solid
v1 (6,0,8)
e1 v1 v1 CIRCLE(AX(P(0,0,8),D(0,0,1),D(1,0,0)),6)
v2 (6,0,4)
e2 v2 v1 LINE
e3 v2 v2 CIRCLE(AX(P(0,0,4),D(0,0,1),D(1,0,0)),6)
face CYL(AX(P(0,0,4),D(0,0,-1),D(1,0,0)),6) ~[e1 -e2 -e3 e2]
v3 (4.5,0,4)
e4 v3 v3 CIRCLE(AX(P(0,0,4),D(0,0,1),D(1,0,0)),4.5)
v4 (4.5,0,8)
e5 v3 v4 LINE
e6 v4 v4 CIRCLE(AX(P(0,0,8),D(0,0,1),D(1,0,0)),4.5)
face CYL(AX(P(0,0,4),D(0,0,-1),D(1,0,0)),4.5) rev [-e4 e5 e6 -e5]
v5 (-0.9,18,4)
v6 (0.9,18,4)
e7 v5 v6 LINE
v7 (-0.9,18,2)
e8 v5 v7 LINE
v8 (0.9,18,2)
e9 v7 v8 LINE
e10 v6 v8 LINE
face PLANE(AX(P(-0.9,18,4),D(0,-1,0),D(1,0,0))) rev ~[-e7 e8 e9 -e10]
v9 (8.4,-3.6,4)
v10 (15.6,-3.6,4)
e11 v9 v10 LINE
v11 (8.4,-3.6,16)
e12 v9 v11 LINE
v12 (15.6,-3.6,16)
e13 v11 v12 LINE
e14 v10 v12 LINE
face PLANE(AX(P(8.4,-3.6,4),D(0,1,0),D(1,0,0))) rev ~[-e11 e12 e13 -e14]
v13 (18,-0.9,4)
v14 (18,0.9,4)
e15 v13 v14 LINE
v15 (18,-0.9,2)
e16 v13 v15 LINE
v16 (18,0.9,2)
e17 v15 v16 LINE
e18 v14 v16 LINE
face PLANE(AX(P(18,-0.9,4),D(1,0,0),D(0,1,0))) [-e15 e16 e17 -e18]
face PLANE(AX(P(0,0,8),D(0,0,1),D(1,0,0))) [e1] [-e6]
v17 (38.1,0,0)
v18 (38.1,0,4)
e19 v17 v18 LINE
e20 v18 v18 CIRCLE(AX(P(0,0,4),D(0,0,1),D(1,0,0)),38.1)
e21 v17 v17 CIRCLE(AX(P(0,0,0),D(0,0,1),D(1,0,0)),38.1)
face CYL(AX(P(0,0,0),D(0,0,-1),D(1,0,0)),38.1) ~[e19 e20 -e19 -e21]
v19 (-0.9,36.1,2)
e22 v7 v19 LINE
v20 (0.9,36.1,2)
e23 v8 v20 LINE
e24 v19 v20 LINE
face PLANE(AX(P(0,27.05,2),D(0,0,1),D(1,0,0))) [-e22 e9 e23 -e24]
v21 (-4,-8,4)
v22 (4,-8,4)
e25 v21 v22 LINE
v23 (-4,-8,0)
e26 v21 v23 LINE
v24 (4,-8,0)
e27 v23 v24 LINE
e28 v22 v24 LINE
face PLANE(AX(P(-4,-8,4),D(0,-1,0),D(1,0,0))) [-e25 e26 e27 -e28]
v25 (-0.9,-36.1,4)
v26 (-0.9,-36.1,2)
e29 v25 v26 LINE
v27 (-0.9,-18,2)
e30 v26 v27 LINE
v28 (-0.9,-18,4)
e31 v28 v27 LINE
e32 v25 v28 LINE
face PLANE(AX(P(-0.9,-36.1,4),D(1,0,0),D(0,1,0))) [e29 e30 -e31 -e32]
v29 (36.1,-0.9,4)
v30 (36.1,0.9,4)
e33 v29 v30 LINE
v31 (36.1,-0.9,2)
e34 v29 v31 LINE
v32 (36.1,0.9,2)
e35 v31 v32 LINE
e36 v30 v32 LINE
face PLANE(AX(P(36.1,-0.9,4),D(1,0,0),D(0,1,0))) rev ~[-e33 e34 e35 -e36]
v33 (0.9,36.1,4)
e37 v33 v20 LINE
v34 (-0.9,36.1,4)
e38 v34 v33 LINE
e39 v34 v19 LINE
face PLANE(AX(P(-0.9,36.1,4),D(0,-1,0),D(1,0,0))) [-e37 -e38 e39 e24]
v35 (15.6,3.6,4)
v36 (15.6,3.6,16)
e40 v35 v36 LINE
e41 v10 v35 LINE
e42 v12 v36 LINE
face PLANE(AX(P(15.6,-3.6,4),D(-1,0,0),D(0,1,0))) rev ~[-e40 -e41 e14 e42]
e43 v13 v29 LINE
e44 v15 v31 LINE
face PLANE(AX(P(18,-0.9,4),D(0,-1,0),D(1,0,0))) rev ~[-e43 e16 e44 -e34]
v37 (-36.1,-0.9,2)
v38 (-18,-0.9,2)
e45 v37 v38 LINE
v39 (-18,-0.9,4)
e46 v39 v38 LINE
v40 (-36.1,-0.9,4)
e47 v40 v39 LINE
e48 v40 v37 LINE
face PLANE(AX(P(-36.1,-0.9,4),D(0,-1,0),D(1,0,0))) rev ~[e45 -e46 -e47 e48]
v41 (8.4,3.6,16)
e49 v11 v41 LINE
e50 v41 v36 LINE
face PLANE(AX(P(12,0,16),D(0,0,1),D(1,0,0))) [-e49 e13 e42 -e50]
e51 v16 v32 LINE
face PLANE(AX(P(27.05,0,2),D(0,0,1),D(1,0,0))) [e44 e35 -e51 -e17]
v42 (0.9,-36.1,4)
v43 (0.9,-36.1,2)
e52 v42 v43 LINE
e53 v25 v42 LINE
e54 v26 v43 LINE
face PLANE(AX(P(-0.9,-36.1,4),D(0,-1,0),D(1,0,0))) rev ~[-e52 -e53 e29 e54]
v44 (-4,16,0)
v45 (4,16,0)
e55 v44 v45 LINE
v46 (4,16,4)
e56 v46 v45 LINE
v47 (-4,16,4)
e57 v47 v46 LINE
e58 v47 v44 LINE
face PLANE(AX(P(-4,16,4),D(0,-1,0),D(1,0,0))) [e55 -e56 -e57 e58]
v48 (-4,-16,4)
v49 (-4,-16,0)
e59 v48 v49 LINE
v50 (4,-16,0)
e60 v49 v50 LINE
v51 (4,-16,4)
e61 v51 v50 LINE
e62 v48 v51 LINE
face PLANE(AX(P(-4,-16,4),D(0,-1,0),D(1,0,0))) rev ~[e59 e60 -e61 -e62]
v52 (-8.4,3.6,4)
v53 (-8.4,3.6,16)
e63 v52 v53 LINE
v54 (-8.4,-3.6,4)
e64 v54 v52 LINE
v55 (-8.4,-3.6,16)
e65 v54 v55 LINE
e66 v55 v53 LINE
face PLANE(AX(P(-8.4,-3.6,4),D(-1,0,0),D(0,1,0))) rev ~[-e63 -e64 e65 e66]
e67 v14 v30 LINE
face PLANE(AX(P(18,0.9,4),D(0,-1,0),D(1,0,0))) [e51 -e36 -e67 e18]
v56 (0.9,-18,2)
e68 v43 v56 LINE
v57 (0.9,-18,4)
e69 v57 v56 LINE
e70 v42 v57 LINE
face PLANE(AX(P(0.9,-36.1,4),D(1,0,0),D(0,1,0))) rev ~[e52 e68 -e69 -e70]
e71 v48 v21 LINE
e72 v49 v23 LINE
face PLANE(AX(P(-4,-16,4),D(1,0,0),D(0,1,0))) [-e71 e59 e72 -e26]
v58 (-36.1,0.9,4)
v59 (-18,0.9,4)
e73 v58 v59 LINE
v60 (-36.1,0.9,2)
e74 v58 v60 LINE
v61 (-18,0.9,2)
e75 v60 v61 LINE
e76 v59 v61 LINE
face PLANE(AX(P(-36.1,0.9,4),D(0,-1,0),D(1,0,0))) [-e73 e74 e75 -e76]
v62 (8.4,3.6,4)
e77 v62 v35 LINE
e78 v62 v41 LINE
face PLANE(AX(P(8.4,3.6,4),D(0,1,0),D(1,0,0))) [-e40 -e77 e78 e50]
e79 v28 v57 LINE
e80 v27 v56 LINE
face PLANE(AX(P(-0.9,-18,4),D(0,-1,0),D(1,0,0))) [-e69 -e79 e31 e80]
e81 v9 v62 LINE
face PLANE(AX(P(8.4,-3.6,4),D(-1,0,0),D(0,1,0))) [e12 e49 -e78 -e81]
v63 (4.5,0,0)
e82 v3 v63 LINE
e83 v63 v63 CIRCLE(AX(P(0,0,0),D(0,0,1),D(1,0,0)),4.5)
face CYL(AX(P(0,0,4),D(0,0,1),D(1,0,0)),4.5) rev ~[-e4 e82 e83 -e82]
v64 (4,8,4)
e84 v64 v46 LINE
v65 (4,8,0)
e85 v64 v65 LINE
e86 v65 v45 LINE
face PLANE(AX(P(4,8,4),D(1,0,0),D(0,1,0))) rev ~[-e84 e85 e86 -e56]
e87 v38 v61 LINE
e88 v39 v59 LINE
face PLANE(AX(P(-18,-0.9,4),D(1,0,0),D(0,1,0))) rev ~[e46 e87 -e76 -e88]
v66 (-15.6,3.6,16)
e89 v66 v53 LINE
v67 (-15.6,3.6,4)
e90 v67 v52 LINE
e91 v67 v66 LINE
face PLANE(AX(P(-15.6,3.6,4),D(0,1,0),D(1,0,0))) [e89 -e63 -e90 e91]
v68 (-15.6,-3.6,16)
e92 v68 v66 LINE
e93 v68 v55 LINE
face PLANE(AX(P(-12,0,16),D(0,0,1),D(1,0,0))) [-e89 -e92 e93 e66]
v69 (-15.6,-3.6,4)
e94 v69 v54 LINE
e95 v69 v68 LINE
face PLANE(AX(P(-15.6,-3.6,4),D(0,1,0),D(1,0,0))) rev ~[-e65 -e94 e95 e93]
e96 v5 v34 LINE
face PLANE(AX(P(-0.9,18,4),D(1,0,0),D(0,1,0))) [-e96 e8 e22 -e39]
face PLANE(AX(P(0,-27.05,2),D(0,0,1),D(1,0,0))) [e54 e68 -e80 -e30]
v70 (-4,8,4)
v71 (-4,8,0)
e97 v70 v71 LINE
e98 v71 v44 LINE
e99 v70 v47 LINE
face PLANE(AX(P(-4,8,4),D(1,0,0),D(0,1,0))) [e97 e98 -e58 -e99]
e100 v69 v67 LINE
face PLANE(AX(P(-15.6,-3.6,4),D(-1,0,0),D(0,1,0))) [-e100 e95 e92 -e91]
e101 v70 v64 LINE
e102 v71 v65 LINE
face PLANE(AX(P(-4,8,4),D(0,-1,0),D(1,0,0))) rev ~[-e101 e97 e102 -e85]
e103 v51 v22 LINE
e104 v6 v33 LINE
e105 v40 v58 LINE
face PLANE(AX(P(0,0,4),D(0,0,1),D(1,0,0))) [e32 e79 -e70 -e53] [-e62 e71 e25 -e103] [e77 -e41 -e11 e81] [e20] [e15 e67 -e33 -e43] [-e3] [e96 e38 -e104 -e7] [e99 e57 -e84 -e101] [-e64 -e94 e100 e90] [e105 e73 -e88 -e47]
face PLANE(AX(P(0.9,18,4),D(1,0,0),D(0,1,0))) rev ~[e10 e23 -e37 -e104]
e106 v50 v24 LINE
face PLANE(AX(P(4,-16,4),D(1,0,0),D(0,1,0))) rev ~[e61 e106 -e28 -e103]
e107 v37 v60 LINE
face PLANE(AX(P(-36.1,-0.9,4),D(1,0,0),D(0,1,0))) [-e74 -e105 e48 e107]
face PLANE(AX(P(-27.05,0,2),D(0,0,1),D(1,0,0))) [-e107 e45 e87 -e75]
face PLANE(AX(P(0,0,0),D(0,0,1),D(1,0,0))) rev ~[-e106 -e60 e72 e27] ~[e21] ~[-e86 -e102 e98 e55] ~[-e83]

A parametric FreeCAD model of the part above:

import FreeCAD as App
import Part
import Sketcher

V = App.Vector

doc = App.newDocument("Part")
body = doc.addObject("PartDesign::Body", "Body")

# Sketch on XY plane
sketch1 = body.newObject("Sketcher::SketchObject", "Sketch")
sketch1.AttachmentSupport = (doc.getObject("XY_Plane"), [""])
sketch1.MapMode = "FlatFace"
sketch1.addGeometry(Part.Circle(V(0, 0, 0), V(0, 0, 1), 38), False)
sketch1.addConstraint(Sketcher.Constraint("Coincident", 0, 3, -1, 1))
sketch1.addConstraint(Sketcher.Constraint("Diameter", 0, 76.2))
pad1 = body.newObject("PartDesign::Pad", "Pad")
pad1.Profile = sketch1
pad1.Length = 4

# Sketch on XY plane
sketch2 = body.newObject("Sketcher::SketchObject", "Sketch001")
sketch2.AttachmentSupport = (doc.getObject("XY_Plane"), [""])
sketch2.MapMode = "FlatFace"
sketch2.AttachmentOffset = App.Placement(V(0, 0, 4), App.Rotation())
sketch2.addGeometry(Part.Circle(V(0, 0, 0), V(0, 0, 1), 4.5), False)
sketch2.addGeometry(Part.LineSegment(V(-4, 16, 0), V(-4, 8, 0)), False)
sketch2.addGeometry(Part.LineSegment(V(-4, 8, 0), V(4, 8, 0)), False)
sketch2.addGeometry(Part.LineSegment(V(4, 8, 0), V(4, 16, 0)), False)
sketch2.addGeometry(Part.LineSegment(V(4, 16, 0), V(-4, 16, 0)), False)
sketch2.addGeometry(Part.LineSegment(V(-4, -8, 0), V(-4, -16, 0)), False)
sketch2.addGeometry(Part.LineSegment(V(-4, -16, 0), V(4, -16, 0)), False)
sketch2.addGeometry(Part.LineSegment(V(4, -16, 0), V(4, -8, 0)), False)
sketch2.addGeometry(Part.LineSegment(V(4, -8, 0), V(-4, -8, 0)), False)
sketch2.addConstraint(Sketcher.Constraint("Coincident", 1, 2, 2, 1))
sketch2.addConstraint(Sketcher.Constraint("Coincident", 2, 2, 3, 1))
sketch2.addConstraint(Sketcher.Constraint("Coincident", 3, 2, 4, 1))
sketch2.addConstraint(Sketcher.Constraint("Coincident", 4, 2, 1, 1))
sketch2.addConstraint(Sketcher.Constraint("Coincident", 5, 2, 6, 1))
sketch2.addConstraint(Sketcher.Constraint("Coincident", 6, 2, 7, 1))
sketch2.addConstraint(Sketcher.Constraint("Coincident", 7, 2, 8, 1))
sketch2.addConstraint(Sketcher.Constraint("Coincident", 8, 2, 5, 1))
sketch2.addConstraint(Sketcher.Constraint("Vertical", 1))
sketch2.addConstraint(Sketcher.Constraint("Horizontal", 2))
sketch2.addConstraint(Sketcher.Constraint("Vertical", 3))
sketch2.addConstraint(Sketcher.Constraint("Horizontal", 4))
sketch2.addConstraint(Sketcher.Constraint("Vertical", 5))
sketch2.addConstraint(Sketcher.Constraint("Horizontal", 6))
sketch2.addConstraint(Sketcher.Constraint("Vertical", 7))
sketch2.addConstraint(Sketcher.Constraint("Horizontal", 8))
sketch2.addConstraint(Sketcher.Constraint("Coincident", 0, 3, -1, 1))
sketch2.addConstraint(Sketcher.Constraint("Symmetric", 3, 2, 5, 2, -1, 1))
sketch2.addConstraint(Sketcher.Constraint("Symmetric", 1, 2, 7, 2, -1, 1))
sketch2.addConstraint(Sketcher.Constraint("Vertical", 4, 2, 5, 2))
sketch2.addConstraint(Sketcher.Constraint("Equal", 8, 1))
sketch2.addConstraint(Sketcher.Constraint("Diameter", 0, 9.0))
sketch2.addConstraint(Sketcher.Constraint("DistanceX", 2, 1, 2, 2, 8.0))
sketch2.addConstraint(Sketcher.Constraint("DistanceY", -1, 1, 1, 2, 8.0))
pocket1 = body.newObject("PartDesign::Pocket", "Pocket")
pocket1.Profile = sketch2
pocket1.Type = "ThroughAll"

# Sketch on XY plane
sketch3 = body.newObject("Sketcher::SketchObject", "Sketch002")
sketch3.AttachmentSupport = (doc.getObject("XY_Plane"), [""])
sketch3.MapMode = "FlatFace"
sketch3.AttachmentOffset = App.Placement(V(0, 0, 4), App.Rotation())
sketch3.addGeometry(Part.LineSegment(V(8, 4, 0), V(8, -4, 0)), False)
sketch3.addGeometry(Part.LineSegment(V(8, -4, 0), V(16, -4, 0)), False)
sketch3.addGeometry(Part.LineSegment(V(16, -4, 0), V(16, 4, 0)), False)
sketch3.addGeometry(Part.LineSegment(V(16, 4, 0), V(8, 4, 0)), False)
sketch3.addGeometry(Part.LineSegment(V(-16, 4, 0), V(-16, -4, 0)), False)
sketch3.addGeometry(Part.LineSegment(V(-16, -4, 0), V(-8, -4, 0)), False)
sketch3.addGeometry(Part.LineSegment(V(-8, -4, 0), V(-8, 4, 0)), False)
sketch3.addGeometry(Part.LineSegment(V(-8, 4, 0), V(-16, 4, 0)), False)
sketch3.addConstraint(Sketcher.Constraint("Coincident", 0, 2, 1, 1))
sketch3.addConstraint(Sketcher.Constraint("Coincident", 1, 2, 2, 1))
sketch3.addConstraint(Sketcher.Constraint("Coincident", 2, 2, 3, 1))
sketch3.addConstraint(Sketcher.Constraint("Coincident", 3, 2, 0, 1))
sketch3.addConstraint(Sketcher.Constraint("Coincident", 4, 2, 5, 1))
sketch3.addConstraint(Sketcher.Constraint("Coincident", 5, 2, 6, 1))
sketch3.addConstraint(Sketcher.Constraint("Coincident", 6, 2, 7, 1))
sketch3.addConstraint(Sketcher.Constraint("Coincident", 7, 2, 4, 1))
sketch3.addConstraint(Sketcher.Constraint("Vertical", 0))
sketch3.addConstraint(Sketcher.Constraint("Horizontal", 1))
sketch3.addConstraint(Sketcher.Constraint("Vertical", 2))
sketch3.addConstraint(Sketcher.Constraint("Horizontal", 3))
sketch3.addConstraint(Sketcher.Constraint("Vertical", 4))
sketch3.addConstraint(Sketcher.Constraint("Horizontal", 5))
sketch3.addConstraint(Sketcher.Constraint("Vertical", 6))
sketch3.addConstraint(Sketcher.Constraint("Horizontal", 7))
sketch3.addConstraint(Sketcher.Constraint("Symmetric", 2, 2, 4, 2, -1, 1))
sketch3.addConstraint(Sketcher.Constraint("Symmetric", 0, 2, 6, 2, -1, 1))
sketch3.addConstraint(Sketcher.Constraint("Horizontal", 1, 2, 4, 2))
sketch3.addConstraint(Sketcher.Constraint("Equal", 7, 0))
sketch3.addConstraint(Sketcher.Constraint("DistanceX", 1, 1, 1, 2, 7.2))
sketch3.addConstraint(Sketcher.Constraint("DistanceX", 4, 2, 0, 2, 24.0))
pad2 = body.newObject("PartDesign::Pad", "Pad001")
pad2.Profile = sketch3
pad2.Length = 12

# Sketch on XY plane
sketch4 = body.newObject("Sketcher::SketchObject", "Sketch003")
sketch4.AttachmentSupport = (doc.getObject("XY_Plane"), [""])
sketch4.MapMode = "FlatFace"
sketch4.AttachmentOffset = App.Placement(V(0, 0, 4), App.Rotation())
sketch4.addGeometry(Part.Circle(V(0, 0, 0), V(0, 0, 1), 6), False)
sketch4.addGeometry(Part.Circle(V(0, 0, 0), V(0, 0, 1), 4.5), False)
sketch4.addConstraint(Sketcher.Constraint("Coincident", 0, 3, -1, 1))
sketch4.addConstraint(Sketcher.Constraint("Coincident", 1, 3, -1, 1))
sketch4.addConstraint(Sketcher.Constraint("Diameter", 0, 12.0))
sketch4.addConstraint(Sketcher.Constraint("Diameter", 1, 9.0))
pad3 = body.newObject("PartDesign::Pad", "Pad002")
pad3.Profile = sketch4
pad3.Length = 4

# Sketch on XY plane
sketch5 = body.newObject("Sketcher::SketchObject", "Sketch004")
sketch5.AttachmentSupport = (doc.getObject("XY_Plane"), [""])
sketch5.MapMode = "FlatFace"
sketch5.AttachmentOffset = App.Placement(V(0, 0, 4), App.Rotation())
sketch5.addGeometry(Part.LineSegment(V(-0.9, 36.1, 0), V(-0.9, 18, 0)), False)
sketch5.addGeometry(Part.LineSegment(V(-0.9, 18, 0), V(0.9, 18, 0)), False)
sketch5.addGeometry(Part.LineSegment(V(0.9, 18, 0), V(0.9, 36.1, 0)), False)
sketch5.addGeometry(Part.LineSegment(V(0.9, 36.1, 0), V(-0.9, 36.1, 0)), False)
sketch5.addGeometry(Part.LineSegment(V(-36.1, 0.9, 0), V(-36.1, -0.9, 0)), False)
sketch5.addGeometry(Part.LineSegment(V(-36.1, -0.9, 0), V(-18, -0.9, 0)), False)
sketch5.addGeometry(Part.LineSegment(V(-18, -0.9, 0), V(-18, 0.9, 0)), False)
sketch5.addGeometry(Part.LineSegment(V(-18, 0.9, 0), V(-36.1, 0.9, 0)), False)
sketch5.addGeometry(Part.LineSegment(V(-0.9, -18, 0), V(-0.9, -36.1, 0)), False)
sketch5.addGeometry(Part.LineSegment(V(-0.9, -36.1, 0), V(0.9, -36.1, 0)), False)
sketch5.addGeometry(Part.LineSegment(V(0.9, -36.1, 0), V(0.9, -18, 0)), False)
sketch5.addGeometry(Part.LineSegment(V(0.9, -18, 0), V(-0.9, -18, 0)), False)
sketch5.addGeometry(Part.LineSegment(V(18, 0.9, 0), V(18, -0.9, 0)), False)
sketch5.addGeometry(Part.LineSegment(V(18, -0.9, 0), V(36.1, -0.9, 0)), False)
sketch5.addGeometry(Part.LineSegment(V(36.1, -0.9, 0), V(36.1, 0.9, 0)), False)
sketch5.addGeometry(Part.LineSegment(V(36.1, 0.9, 0), V(18, 0.9, 0)), False)
sketch5.addConstraint(Sketcher.Constraint("Coincident", 0, 2, 1, 1))
sketch5.addConstraint(Sketcher.Constraint("Coincident", 1, 2, 2, 1))
sketch5.addConstraint(Sketcher.Constraint("Coincident", 2, 2, 3, 1))
sketch5.addConstraint(Sketcher.Constraint("Coincident", 3, 2, 0, 1))
sketch5.addConstraint(Sketcher.Constraint("Coincident", 4, 2, 5, 1))
sketch5.addConstraint(Sketcher.Constraint("Coincident", 5, 2, 6, 1))
sketch5.addConstraint(Sketcher.Constraint("Coincident", 6, 2, 7, 1))
sketch5.addConstraint(Sketcher.Constraint("Coincident", 7, 2, 4, 1))
sketch5.addConstraint(Sketcher.Constraint("Coincident", 8, 2, 9, 1))
sketch5.addConstraint(Sketcher.Constraint("Coincident", 9, 2, 10, 1))
sketch5.addConstraint(Sketcher.Constraint("Coincident", 10, 2, 11, 1))
sketch5.addConstraint(Sketcher.Constraint("Coincident", 11, 2, 8, 1))
sketch5.addConstraint(Sketcher.Constraint("Coincident", 12, 2, 13, 1))
sketch5.addConstraint(Sketcher.Constraint("Coincident", 13, 2, 14, 1))
sketch5.addConstraint(Sketcher.Constraint("Coincident", 14, 2, 15, 1))
sketch5.addConstraint(Sketcher.Constraint("Coincident", 15, 2, 12, 1))
sketch5.addConstraint(Sketcher.Constraint("Vertical", 0))
sketch5.addConstraint(Sketcher.Constraint("Horizontal", 1))
sketch5.addConstraint(Sketcher.Constraint("Vertical", 2))
sketch5.addConstraint(Sketcher.Constraint("Horizontal", 3))
sketch5.addConstraint(Sketcher.Constraint("Vertical", 4))
sketch5.addConstraint(Sketcher.Constraint("Horizontal", 5))
sketch5.addConstraint(Sketcher.Constraint("Vertical", 6))
sketch5.addConstraint(Sketcher.Constraint("Horizontal", 7))
sketch5.addConstraint(Sketcher.Constraint("Vertical", 8))
sketch5.addConstraint(Sketcher.Constraint("Horizontal", 9))
sketch5.addConstraint(Sketcher.Constraint("Vertical", 10))
sketch5.addConstraint(Sketcher.Constraint("Horizontal", 11))
sketch5.addConstraint(Sketcher.Constraint("Vertical", 12))
sketch5.addConstraint(Sketcher.Constraint("Horizontal", 13))
sketch5.addConstraint(Sketcher.Constraint("Vertical", 14))
sketch5.addConstraint(Sketcher.Constraint("Horizontal", 15))
sketch5.addConstraint(Sketcher.Constraint("Symmetric", 2, 2, 8, 2, -1, 1))
sketch5.addConstraint(Sketcher.Constraint("Symmetric", 0, 2, 10, 2, -1, 1))
sketch5.addConstraint(Sketcher.Constraint("Symmetric", 6, 2, 12, 2, -1, 1))
sketch5.addConstraint(Sketcher.Constraint("Symmetric", 4, 2, 14, 2, -1, 1))
sketch5.addConstraint(Sketcher.Constraint("Horizontal", 5, 2, 12, 2))
sketch5.addConstraint(Sketcher.Constraint("Vertical", 3, 2, 8, 2))
sketch5.addConstraint(Sketcher.Constraint("Equal", 15, 0))
sketch5.addConstraint(Sketcher.Constraint("Equal", 11, 4))
sketch5.addConstraint(Sketcher.Constraint("DistanceX", 1, 1, 1, 2, 1.8))
sketch5.addConstraint(Sketcher.Constraint("DistanceX", 5, 1, 5, 2, 18.1))
sketch5.addConstraint(Sketcher.Constraint("DistanceY", -1, 1, 0, 2, 18.0))
sketch5.addConstraint(Sketcher.Constraint("DistanceX", 5, 2, -1, 1, 18.0))
pocket2 = body.newObject("PartDesign::Pocket", "Pocket001")
pocket2.Profile = sketch5
pocket2.Length = 2

doc.recompute()
